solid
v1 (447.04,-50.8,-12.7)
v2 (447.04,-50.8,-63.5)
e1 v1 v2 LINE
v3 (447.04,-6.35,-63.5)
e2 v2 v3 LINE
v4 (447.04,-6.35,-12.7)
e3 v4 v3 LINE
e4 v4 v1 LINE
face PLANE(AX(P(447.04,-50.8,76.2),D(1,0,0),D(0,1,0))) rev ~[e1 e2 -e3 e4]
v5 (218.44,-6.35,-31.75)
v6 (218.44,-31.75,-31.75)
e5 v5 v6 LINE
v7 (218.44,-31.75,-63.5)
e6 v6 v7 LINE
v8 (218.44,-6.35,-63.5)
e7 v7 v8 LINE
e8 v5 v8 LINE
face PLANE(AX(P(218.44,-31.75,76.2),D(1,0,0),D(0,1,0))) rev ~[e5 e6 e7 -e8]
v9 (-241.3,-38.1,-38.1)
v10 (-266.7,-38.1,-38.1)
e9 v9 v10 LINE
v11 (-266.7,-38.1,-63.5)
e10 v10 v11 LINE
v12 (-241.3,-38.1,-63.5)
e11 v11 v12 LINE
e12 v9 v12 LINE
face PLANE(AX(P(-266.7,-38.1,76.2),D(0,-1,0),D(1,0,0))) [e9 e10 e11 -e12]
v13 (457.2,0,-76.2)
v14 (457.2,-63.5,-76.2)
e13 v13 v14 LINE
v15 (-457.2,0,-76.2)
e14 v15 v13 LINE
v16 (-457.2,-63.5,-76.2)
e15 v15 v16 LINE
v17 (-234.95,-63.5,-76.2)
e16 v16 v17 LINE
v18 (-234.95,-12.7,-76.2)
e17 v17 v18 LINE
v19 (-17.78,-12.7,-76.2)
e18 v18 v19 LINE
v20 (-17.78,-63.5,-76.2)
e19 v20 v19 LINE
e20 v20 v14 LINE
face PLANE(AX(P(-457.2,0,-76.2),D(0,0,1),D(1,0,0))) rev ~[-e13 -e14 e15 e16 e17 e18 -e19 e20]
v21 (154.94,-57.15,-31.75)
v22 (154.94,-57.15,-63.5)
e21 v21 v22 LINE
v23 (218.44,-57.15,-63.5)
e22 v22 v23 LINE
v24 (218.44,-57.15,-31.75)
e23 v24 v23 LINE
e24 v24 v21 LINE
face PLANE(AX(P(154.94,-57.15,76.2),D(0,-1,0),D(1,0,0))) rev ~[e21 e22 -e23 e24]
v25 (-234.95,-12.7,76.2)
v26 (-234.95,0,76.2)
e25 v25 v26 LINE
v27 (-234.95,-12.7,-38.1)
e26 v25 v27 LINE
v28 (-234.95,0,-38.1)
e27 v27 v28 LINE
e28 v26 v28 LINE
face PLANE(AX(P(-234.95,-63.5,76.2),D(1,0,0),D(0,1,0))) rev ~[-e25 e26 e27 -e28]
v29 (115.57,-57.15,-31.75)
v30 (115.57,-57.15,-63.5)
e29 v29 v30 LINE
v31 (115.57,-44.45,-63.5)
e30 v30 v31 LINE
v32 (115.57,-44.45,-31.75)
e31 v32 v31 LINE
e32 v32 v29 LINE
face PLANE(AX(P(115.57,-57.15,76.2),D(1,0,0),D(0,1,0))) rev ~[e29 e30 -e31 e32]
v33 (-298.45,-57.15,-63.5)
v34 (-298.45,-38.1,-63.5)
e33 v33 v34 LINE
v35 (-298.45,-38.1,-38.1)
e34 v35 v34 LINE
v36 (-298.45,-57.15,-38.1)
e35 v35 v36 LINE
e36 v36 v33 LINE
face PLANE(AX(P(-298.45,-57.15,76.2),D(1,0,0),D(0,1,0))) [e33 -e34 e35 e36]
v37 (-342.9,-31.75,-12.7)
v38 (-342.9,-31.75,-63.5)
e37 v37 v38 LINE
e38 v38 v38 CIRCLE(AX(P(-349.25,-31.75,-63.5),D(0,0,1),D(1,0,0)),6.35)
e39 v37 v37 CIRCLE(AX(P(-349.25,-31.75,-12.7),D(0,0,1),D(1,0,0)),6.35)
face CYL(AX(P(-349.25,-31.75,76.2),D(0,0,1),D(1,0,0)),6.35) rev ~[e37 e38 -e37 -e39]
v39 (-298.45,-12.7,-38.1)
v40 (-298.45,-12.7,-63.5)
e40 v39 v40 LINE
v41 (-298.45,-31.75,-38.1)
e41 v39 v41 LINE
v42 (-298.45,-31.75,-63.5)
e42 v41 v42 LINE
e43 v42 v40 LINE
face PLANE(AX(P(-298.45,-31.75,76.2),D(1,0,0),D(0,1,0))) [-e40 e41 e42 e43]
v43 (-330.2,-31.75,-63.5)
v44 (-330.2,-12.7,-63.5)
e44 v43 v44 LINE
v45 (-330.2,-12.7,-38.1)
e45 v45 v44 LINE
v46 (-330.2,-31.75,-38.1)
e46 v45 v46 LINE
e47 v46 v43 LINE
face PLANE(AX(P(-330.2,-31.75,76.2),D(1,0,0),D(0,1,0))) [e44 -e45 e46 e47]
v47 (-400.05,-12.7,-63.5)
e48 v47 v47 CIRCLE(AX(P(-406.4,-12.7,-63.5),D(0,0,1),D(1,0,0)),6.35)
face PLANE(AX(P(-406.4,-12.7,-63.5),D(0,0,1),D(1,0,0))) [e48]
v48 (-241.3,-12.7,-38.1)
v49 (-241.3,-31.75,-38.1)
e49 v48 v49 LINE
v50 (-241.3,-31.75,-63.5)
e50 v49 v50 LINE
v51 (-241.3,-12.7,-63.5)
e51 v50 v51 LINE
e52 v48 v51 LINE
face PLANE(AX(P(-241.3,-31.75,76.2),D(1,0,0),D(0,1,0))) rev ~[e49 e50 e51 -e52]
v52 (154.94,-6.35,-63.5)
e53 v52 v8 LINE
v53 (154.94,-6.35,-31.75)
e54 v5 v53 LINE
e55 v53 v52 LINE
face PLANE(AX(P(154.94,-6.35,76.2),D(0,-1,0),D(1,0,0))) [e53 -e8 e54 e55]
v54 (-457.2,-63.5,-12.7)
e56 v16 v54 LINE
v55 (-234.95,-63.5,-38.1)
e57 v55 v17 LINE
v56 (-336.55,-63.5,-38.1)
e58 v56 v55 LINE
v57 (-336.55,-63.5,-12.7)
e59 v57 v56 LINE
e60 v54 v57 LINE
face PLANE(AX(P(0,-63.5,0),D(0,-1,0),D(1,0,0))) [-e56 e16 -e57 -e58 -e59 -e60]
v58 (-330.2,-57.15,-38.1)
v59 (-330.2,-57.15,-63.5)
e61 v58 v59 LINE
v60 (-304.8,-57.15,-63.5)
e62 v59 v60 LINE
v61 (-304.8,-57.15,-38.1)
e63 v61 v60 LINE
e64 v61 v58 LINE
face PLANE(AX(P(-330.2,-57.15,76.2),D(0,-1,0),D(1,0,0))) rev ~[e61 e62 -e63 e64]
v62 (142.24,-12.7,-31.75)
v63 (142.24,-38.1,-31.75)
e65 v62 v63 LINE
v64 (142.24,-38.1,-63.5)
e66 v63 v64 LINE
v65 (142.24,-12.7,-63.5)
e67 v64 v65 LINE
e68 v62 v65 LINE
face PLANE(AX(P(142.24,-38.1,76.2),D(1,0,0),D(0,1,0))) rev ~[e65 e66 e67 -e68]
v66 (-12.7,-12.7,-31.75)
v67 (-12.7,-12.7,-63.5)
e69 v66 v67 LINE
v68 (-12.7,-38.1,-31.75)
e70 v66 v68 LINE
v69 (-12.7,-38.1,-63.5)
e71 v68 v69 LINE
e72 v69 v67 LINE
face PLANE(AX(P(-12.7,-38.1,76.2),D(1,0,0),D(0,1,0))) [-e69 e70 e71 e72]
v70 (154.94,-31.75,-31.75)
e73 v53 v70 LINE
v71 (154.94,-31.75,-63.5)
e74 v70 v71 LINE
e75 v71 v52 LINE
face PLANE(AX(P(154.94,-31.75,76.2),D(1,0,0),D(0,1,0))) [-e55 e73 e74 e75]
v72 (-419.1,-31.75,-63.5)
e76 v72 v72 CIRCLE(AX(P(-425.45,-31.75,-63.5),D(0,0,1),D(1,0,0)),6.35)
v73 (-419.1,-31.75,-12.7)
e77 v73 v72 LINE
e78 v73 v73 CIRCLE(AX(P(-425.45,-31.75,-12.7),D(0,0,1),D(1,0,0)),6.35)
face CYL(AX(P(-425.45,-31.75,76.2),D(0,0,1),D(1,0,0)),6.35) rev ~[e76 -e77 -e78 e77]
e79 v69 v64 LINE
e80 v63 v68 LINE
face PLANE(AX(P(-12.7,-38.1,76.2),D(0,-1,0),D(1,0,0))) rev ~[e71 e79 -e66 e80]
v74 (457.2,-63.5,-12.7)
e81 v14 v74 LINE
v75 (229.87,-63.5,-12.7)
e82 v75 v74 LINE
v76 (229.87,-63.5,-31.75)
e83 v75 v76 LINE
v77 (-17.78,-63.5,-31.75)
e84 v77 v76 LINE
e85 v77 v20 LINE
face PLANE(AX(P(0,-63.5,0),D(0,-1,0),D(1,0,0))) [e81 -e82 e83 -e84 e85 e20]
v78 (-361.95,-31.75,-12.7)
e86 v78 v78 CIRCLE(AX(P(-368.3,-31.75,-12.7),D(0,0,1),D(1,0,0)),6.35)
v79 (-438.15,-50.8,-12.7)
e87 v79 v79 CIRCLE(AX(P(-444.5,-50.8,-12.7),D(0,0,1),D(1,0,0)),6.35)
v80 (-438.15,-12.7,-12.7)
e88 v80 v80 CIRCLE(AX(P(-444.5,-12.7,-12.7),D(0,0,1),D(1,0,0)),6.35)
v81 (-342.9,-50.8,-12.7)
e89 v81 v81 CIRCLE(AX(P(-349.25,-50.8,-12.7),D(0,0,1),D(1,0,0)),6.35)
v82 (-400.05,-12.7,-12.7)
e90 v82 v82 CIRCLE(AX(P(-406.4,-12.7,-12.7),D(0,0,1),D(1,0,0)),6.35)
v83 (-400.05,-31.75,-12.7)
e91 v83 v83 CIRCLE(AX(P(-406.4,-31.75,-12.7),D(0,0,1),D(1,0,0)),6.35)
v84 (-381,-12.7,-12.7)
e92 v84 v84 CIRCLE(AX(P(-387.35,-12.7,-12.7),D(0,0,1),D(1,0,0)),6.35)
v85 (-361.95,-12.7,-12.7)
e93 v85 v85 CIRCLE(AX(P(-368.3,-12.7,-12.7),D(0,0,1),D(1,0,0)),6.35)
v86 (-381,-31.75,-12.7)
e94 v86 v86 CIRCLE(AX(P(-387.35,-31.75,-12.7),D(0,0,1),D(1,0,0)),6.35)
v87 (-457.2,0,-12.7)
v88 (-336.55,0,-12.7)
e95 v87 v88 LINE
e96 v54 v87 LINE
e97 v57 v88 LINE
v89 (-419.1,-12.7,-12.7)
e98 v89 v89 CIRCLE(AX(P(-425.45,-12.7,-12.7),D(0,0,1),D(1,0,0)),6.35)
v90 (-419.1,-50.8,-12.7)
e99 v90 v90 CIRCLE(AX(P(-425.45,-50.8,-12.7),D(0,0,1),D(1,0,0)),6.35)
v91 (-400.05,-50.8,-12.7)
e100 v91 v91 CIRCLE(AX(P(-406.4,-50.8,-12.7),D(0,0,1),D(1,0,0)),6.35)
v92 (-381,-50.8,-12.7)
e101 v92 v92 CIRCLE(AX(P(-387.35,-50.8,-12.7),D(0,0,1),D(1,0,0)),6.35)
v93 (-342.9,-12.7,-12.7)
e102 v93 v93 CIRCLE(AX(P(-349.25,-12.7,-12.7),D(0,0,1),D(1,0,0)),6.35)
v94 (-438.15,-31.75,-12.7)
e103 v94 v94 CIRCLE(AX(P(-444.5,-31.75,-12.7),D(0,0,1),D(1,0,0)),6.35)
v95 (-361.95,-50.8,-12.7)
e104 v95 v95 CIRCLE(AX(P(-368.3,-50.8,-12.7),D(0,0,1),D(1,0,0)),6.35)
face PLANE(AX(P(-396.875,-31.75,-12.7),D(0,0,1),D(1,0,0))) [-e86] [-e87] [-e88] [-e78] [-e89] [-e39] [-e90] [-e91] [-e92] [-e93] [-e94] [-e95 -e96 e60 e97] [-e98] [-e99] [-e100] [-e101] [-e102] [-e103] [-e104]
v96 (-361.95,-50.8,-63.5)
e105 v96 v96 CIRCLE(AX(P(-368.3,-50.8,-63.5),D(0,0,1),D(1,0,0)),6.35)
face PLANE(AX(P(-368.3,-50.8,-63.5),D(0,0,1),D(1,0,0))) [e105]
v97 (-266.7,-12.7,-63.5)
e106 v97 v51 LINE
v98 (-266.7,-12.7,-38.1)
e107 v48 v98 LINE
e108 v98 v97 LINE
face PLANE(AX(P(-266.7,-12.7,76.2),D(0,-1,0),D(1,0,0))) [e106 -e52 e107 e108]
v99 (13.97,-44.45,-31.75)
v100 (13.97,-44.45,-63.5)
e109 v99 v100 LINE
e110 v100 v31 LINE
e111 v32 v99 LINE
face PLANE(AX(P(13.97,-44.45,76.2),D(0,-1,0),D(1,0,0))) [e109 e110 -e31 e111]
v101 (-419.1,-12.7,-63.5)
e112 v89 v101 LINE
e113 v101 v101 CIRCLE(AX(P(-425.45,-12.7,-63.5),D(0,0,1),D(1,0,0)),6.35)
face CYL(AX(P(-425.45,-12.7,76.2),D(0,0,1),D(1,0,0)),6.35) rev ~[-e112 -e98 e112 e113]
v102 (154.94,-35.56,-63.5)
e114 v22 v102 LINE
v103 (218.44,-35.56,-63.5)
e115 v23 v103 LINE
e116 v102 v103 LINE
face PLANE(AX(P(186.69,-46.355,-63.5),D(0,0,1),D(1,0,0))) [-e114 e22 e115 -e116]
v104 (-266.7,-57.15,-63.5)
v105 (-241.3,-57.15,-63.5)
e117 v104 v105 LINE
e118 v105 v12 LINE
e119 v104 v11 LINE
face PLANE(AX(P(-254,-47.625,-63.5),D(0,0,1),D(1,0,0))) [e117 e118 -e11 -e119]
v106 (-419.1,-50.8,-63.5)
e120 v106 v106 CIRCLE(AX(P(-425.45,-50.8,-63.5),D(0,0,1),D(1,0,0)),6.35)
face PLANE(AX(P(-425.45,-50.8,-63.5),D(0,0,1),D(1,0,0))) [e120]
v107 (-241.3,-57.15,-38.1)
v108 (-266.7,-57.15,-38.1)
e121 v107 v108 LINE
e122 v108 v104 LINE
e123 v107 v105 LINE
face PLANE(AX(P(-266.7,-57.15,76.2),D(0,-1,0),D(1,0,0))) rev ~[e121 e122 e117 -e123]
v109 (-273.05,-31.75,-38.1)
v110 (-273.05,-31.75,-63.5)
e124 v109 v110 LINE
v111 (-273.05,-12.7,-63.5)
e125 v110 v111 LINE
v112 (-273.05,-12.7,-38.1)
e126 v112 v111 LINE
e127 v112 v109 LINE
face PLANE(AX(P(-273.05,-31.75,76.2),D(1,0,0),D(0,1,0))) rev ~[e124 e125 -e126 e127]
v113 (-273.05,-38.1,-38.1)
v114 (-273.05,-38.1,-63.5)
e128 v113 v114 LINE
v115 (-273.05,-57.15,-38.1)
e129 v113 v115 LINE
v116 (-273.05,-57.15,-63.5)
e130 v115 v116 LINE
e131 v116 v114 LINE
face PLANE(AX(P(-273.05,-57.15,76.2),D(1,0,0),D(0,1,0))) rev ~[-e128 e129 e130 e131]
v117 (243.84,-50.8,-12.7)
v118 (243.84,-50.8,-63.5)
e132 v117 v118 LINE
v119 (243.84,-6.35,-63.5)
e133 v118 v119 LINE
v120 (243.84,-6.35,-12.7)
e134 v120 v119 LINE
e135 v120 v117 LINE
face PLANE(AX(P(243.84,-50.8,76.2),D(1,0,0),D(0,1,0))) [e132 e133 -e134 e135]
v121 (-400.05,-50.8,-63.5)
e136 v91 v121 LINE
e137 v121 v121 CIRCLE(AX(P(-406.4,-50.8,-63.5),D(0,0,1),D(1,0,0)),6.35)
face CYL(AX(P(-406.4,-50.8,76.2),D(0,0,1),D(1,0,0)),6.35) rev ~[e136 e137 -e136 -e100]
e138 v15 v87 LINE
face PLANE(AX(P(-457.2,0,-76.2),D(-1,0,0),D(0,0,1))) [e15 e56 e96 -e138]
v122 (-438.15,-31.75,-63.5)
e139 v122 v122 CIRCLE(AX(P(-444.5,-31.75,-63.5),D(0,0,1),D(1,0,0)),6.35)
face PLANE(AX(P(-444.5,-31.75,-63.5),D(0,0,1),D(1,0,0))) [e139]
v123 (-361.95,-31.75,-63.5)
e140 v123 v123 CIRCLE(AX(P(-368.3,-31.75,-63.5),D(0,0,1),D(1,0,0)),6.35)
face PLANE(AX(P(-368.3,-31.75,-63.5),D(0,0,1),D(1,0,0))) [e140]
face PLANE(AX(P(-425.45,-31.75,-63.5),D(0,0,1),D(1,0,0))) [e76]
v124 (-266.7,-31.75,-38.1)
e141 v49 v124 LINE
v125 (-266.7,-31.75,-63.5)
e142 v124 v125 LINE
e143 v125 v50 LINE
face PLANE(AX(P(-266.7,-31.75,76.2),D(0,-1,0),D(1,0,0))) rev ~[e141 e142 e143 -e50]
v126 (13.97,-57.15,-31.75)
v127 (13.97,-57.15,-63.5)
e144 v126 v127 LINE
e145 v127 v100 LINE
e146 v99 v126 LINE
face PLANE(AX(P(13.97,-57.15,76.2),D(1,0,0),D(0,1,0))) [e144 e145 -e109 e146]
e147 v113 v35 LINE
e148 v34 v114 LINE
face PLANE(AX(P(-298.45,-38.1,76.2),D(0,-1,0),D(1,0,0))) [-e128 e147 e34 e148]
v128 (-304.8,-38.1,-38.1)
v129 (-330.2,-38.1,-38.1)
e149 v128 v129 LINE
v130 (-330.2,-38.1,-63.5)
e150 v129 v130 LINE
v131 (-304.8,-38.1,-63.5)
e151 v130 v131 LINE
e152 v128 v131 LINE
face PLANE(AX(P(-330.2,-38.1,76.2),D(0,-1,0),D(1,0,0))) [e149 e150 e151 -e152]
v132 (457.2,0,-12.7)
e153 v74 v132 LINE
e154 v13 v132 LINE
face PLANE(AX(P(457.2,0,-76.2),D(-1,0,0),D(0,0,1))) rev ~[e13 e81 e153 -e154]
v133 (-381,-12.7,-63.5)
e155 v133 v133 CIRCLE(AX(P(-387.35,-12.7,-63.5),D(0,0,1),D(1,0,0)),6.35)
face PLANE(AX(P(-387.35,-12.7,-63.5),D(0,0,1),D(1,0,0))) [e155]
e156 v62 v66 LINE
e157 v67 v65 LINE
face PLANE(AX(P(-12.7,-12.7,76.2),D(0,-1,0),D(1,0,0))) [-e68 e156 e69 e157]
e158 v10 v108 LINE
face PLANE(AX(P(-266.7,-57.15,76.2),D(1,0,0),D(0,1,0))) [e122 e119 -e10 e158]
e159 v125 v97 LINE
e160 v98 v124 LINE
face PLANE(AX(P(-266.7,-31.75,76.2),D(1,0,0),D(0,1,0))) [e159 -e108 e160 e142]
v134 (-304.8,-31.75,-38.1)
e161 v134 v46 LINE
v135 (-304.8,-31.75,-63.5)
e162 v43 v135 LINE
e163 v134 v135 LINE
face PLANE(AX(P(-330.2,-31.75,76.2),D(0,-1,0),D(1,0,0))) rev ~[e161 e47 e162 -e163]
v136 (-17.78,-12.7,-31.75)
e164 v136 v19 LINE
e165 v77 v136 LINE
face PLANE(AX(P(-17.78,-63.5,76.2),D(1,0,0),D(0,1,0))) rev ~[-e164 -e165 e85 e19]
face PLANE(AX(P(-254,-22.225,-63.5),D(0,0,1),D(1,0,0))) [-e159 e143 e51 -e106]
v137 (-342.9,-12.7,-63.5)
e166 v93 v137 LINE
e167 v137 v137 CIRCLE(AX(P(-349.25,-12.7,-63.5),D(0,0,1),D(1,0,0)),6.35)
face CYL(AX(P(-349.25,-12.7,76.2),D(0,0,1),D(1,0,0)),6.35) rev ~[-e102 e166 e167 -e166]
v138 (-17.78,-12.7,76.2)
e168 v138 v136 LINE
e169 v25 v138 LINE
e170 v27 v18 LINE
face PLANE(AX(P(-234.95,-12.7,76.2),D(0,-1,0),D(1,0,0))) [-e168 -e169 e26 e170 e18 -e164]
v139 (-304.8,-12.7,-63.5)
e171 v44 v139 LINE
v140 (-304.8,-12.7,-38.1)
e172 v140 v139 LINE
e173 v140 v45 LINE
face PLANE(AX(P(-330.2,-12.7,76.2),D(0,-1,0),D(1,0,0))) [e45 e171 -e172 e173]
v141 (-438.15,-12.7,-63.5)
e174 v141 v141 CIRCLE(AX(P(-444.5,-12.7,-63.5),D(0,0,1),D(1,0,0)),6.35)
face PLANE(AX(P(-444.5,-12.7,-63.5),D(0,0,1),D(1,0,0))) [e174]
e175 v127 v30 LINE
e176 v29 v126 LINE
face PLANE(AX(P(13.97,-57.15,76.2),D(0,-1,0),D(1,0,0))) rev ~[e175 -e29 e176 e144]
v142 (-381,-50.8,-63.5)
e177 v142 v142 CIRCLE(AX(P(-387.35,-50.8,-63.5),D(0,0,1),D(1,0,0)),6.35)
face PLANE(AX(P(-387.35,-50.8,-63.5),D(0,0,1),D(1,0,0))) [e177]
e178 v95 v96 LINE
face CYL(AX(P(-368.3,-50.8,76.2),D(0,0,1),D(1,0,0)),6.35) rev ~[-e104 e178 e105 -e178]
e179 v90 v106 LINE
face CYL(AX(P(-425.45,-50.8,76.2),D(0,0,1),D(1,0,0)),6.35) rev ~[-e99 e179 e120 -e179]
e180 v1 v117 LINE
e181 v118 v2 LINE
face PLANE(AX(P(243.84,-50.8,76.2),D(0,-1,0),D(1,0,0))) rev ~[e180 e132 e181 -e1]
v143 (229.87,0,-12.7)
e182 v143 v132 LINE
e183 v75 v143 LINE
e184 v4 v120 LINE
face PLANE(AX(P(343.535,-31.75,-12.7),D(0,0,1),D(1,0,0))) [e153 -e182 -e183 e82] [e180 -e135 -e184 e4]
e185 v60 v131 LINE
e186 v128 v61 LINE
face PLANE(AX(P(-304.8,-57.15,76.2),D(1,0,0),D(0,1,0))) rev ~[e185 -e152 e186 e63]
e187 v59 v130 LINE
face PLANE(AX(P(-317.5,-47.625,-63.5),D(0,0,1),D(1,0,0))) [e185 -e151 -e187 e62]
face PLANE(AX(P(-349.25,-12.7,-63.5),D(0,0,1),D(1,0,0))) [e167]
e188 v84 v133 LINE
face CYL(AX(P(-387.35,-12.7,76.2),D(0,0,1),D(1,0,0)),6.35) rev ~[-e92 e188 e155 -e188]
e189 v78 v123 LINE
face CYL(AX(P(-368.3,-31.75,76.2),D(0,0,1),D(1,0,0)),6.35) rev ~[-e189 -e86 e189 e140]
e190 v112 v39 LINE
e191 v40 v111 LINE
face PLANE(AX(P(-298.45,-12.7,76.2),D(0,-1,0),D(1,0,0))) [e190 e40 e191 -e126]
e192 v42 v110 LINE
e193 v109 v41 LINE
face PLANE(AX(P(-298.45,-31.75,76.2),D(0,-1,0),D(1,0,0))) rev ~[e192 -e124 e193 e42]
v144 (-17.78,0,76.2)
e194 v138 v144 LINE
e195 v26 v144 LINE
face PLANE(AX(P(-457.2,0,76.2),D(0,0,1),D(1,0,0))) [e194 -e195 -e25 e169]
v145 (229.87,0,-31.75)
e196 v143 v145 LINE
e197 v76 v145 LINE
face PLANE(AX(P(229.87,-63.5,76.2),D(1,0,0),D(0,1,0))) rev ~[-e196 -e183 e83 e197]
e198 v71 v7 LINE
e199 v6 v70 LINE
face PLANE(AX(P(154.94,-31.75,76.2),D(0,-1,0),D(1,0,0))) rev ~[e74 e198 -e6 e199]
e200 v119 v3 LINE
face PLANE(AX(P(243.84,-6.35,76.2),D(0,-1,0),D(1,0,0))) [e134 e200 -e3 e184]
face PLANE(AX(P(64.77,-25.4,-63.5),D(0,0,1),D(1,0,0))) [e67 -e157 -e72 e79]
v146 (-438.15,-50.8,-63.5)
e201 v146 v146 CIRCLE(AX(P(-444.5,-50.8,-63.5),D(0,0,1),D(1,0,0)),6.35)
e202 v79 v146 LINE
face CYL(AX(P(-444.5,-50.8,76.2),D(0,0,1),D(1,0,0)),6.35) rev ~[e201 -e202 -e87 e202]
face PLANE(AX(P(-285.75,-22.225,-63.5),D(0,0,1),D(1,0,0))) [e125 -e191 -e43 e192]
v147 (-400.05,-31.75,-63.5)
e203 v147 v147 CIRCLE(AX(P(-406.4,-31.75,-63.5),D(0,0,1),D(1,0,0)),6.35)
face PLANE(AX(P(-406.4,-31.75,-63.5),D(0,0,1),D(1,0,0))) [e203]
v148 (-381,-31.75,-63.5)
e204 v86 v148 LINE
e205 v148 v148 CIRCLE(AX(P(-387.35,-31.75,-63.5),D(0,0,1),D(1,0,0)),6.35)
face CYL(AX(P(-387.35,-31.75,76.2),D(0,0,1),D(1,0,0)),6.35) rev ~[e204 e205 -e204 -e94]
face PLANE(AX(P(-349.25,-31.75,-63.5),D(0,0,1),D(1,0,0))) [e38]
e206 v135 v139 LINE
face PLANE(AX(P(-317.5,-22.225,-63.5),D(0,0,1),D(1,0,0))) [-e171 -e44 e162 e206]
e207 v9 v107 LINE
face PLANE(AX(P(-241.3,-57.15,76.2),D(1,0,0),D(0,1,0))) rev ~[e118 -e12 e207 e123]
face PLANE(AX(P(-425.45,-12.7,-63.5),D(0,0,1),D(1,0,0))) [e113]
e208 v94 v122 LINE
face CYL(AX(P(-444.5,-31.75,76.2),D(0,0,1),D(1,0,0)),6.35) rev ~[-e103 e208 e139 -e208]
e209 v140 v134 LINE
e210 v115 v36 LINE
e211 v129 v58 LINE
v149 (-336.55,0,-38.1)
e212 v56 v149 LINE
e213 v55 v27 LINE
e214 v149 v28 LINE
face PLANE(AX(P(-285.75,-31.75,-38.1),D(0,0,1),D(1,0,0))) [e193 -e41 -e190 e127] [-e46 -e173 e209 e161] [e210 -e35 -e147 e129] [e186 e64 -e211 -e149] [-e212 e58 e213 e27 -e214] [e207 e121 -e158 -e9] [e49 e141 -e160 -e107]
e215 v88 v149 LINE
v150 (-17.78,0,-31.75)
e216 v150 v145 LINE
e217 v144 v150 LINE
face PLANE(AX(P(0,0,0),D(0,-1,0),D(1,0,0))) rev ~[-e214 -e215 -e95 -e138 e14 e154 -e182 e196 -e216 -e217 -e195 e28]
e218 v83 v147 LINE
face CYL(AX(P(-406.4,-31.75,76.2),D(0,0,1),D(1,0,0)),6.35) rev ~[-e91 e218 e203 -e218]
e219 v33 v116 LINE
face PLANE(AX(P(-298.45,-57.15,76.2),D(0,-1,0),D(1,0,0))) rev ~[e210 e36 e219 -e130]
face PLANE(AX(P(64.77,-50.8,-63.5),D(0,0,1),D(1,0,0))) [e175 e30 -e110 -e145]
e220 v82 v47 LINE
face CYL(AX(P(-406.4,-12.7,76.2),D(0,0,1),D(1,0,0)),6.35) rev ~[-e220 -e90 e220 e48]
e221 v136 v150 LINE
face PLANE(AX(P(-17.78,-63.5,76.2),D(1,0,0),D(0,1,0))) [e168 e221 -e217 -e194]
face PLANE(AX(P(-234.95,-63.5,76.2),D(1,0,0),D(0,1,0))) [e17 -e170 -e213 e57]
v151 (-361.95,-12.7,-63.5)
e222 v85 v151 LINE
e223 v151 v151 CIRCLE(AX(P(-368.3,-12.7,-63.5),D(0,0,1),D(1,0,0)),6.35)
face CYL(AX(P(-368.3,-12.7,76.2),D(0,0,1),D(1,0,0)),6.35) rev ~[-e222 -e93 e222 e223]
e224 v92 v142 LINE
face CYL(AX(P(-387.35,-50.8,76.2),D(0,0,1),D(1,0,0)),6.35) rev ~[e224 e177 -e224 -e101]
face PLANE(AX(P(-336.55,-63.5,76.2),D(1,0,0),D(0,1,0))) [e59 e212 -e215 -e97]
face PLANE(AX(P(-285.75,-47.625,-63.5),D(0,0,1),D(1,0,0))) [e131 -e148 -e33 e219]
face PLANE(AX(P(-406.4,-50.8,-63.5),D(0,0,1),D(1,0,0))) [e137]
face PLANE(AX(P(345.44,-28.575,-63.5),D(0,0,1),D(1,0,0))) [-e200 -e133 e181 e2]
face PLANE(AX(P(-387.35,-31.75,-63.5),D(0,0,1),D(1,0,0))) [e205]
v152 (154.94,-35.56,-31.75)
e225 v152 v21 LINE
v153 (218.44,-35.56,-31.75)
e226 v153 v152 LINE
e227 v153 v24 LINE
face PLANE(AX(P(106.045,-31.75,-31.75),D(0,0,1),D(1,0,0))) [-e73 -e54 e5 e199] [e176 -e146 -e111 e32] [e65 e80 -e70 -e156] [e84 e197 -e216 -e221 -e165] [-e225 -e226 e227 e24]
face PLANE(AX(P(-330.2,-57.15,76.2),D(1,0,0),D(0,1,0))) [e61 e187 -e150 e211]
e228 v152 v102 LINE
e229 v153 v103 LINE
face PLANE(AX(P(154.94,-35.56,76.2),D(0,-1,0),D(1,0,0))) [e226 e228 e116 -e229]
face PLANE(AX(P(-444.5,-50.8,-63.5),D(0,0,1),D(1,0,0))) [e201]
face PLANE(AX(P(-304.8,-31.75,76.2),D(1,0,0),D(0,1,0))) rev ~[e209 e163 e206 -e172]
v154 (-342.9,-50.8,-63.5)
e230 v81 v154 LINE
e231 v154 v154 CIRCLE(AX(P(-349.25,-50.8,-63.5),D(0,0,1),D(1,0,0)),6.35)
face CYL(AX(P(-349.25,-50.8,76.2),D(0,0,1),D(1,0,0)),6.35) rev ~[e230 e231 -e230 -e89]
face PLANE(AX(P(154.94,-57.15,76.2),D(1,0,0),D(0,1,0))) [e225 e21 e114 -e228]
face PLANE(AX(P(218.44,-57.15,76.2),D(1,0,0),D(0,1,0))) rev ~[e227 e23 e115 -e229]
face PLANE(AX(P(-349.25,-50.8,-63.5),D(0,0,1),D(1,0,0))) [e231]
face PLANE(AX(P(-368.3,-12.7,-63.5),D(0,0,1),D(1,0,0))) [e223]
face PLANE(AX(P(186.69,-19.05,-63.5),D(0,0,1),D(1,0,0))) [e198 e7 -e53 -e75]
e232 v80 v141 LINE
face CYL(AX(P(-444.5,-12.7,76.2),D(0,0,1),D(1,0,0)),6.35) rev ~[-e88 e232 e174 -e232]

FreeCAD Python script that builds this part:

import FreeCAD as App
import Part
import Sketcher

V = App.Vector
Q = App.Units.Quantity

doc = App.newDocument("Part")
body = doc.addObject("PartDesign::Body", "Body")

sketch1 = body.newObject("Sketcher::SketchObject", "Sketch")
sketch1.AttachmentSupport = (doc.getObject("XZ_Plane"), [""])
sketch1.MapMode = "FlatFace"
sketch1.addGeometry(Part.LineSegment(V(-457.2, 76.2, 0), V(-457.2, -76.2, 0)), False)
sketch1.addGeometry(Part.LineSegment(V(-457.2, -76.2, 0), V(457.2, -76.2, 0)), False)
sketch1.addGeometry(Part.LineSegment(V(457.2, -76.2, 0), V(457.2, 76.2, 0)), False)
sketch1.addGeometry(Part.LineSegment(V(457.2, 76.2, 0), V(-457.2, 76.2, 0)), False)
sketch1.addConstraint(Sketcher.Constraint("Coincident", 0, 2, 1, 1))
sketch1.addConstraint(Sketcher.Constraint("Coincident", 1, 2, 2, 1))
sketch1.addConstraint(Sketcher.Constraint("Coincident", 2, 2, 3, 1))
sketch1.addConstraint(Sketcher.Constraint("Coincident", 3, 2, 0, 1))
sketch1.addConstraint(Sketcher.Constraint("Vertical", 0))
sketch1.addConstraint(Sketcher.Constraint("Horizontal", 1))
sketch1.addConstraint(Sketcher.Constraint("Vertical", 2))
sketch1.addConstraint(Sketcher.Constraint("Horizontal", 3))
sketch1.addConstraint(Sketcher.Constraint("Symmetric", 0, 2, 2, 2, -1, 1))
sketch1.addConstraint(Sketcher.Constraint("DistanceX", 1, 1, 1, 2, Q("36 in")))
sketch1.addConstraint(Sketcher.Constraint("DistanceY", 0, 2, 0, 1, Q("6 in")))
pad1 = body.newObject("PartDesign::Pad", "Pad")
pad1.Profile = sketch1
pad1.Length = Q("2.5 in")

sketch2 = body.newObject("Sketcher::SketchObject", "Sketch001")
sketch2.AttachmentSupport = (doc.getObject("XY_Plane"), [""])
sketch2.MapMode = "FlatFace"
sketch2.AttachmentOffset = App.Placement(V(0, 0, 3 * 25.4), App.Rotation())
sketch2.addGeometry(Part.Circle(V(-444.5, -12.7, 0), V(0, 0, 1), 6.35), False)
sketch2.addGeometry(Part.Circle(V(-425.45, -12.7, 0), V(0, 0, 1), 6.35), False)
sketch2.addGeometry(Part.Circle(V(-406.4, -12.7, 0), V(0, 0, 1), 6.35), False)
sketch2.addGeometry(Part.Circle(V(-387.35, -12.7, 0), V(0, 0, 1), 6.35), False)
sketch2.addGeometry(Part.Circle(V(-368.3, -12.7, 0), V(0, 0, 1), 6.35), False)
sketch2.addGeometry(Part.Circle(V(-349.25, -12.7, 0), V(0, 0, 1), 6.35), False)
sketch2.addGeometry(Part.Circle(V(-444.5, -31.75, 0), V(0, 0, 1), 6.35), False)
sketch2.addGeometry(Part.Circle(V(-425.45, -31.75, 0), V(0, 0, 1), 6.35), False)
sketch2.addGeometry(Part.Circle(V(-406.4, -31.75, 0), V(0, 0, 1), 6.35), False)
sketch2.addGeometry(Part.Circle(V(-387.35, -31.75, 0), V(0, 0, 1), 6.35), False)
sketch2.addGeometry(Part.Circle(V(-368.3, -31.75, 0), V(0, 0, 1), 6.35), False)
sketch2.addGeometry(Part.Circle(V(-349.25, -31.75, 0), V(0, 0, 1), 6.35), False)
sketch2.addGeometry(Part.Circle(V(-444.5, -50.8, 0), V(0, 0, 1), 6.35), False)
sketch2.addGeometry(Part.Circle(V(-425.45, -50.8, 0), V(0, 0, 1), 6.35), False)
sketch2.addGeometry(Part.Circle(V(-406.4, -50.8, 0), V(0, 0, 1), 6.35), False)
sketch2.addGeometry(Part.Circle(V(-387.35, -50.8, 0), V(0, 0, 1), 6.35), False)
sketch2.addGeometry(Part.Circle(V(-368.3, -50.8, 0), V(0, 0, 1), 6.35), False)
sketch2.addGeometry(Part.Circle(V(-349.25, -50.8, 0), V(0, 0, 1), 6.35), False)
sketch2.addGeometry(Part.LineSegment(V(-330.2, -38.1, 0), V(-330.2, -57.15, 0)), False)
sketch2.addGeometry(Part.LineSegment(V(-330.2, -57.15, 0), V(-304.8, -57.15, 0)), False)
sketch2.addGeometry(Part.LineSegment(V(-304.8, -57.15, 0), V(-304.8, -38.1, 0)), False)
sketch2.addGeometry(Part.LineSegment(V(-304.8, -38.1, 0), V(-330.2, -38.1, 0)), False)
sketch2.addGeometry(Part.LineSegment(V(-330.2, -12.7, 0), V(-330.2, -31.75, 0)), False)
sketch2.addGeometry(Part.LineSegment(V(-330.2, -31.75, 0), V(-304.8, -31.75, 0)), False)
sketch2.addGeometry(Part.LineSegment(V(-304.8, -31.75, 0), V(-304.8, -12.7, 0)), False)
sketch2.addGeometry(Part.LineSegment(V(-304.8, -12.7, 0), V(-330.2, -12.7, 0)), False)
sketch2.addGeometry(Part.LineSegment(V(-298.45, -12.7, 0), V(-298.45, -31.75, 0)), False)
sketch2.addGeometry(Part.LineSegment(V(-298.45, -31.75, 0), V(-273.05, -31.75, 0)), False)
sketch2.addGeometry(Part.LineSegment(V(-273.05, -31.75, 0), V(-273.05, -12.7, 0)), False)
sketch2.addGeometry(Part.LineSegment(V(-273.05, -12.7, 0), V(-298.45, -12.7, 0)), False)
sketch2.addGeometry(Part.LineSegment(V(-298.45, -38.1, 0), V(-298.45, -57.15, 0)), False)
sketch2.addGeometry(Part.LineSegment(V(-298.45, -57.15, 0), V(-273.05, -57.15, 0)), False)
sketch2.addGeometry(Part.LineSegment(V(-273.05, -57.15, 0), V(-273.05, -38.1, 0)), False)
sketch2.addGeometry(Part.LineSegment(V(-273.05, -38.1, 0), V(-298.45, -38.1, 0)), False)
sketch2.addGeometry(Part.LineSegment(V(-266.7, -12.7, 0), V(-266.7, -31.75, 0)), False)
sketch2.addGeometry(Part.LineSegment(V(-266.7, -31.75, 0), V(-241.3, -31.75, 0)), False)
sketch2.addGeometry(Part.LineSegment(V(-241.3, -31.75, 0), V(-241.3, -12.7, 0)), False)
sketch2.addGeometry(Part.LineSegment(V(-241.3, -12.7, 0), V(-266.7, -12.7, 0)), False)
sketch2.addGeometry(Part.LineSegment(V(-266.7, -38.1, 0), V(-266.7, -57.15, 0)), False)
sketch2.addGeometry(Part.LineSegment(V(-266.7, -57.15, 0), V(-241.3, -57.15, 0)), False)
sketch2.addGeometry(Part.LineSegment(V(-241.3, -57.15, 0), V(-241.3, -38.1, 0)), False)
sketch2.addGeometry(Part.LineSegment(V(-241.3, -38.1, 0), V(-266.7, -38.1, 0)), False)
sketch2.addGeometry(Part.LineSegment(V(-12.7, -12.7, 0), V(-12.7, -38.1, 0)), False)
sketch2.addGeometry(Part.LineSegment(V(-12.7, -38.1, 0), V(142.24, -38.1, 0)), False)
sketch2.addGeometry(Part.LineSegment(V(142.24, -38.1, 0), V(142.24, -12.7, 0)), False)
sketch2.addGeometry(Part.LineSegment(V(142.24, -12.7, 0), V(-12.7, -12.7, 0)), False)
sketch2.addGeometry(Part.LineSegment(V(13.97, -44.45, 0), V(13.97, -57.15, 0)), False)
sketch2.addGeometry(Part.LineSegment(V(13.97, -57.15, 0), V(115.57, -57.15, 0)), False)
sketch2.addGeometry(Part.LineSegment(V(115.57, -57.15, 0), V(115.57, -44.45, 0)), False)
sketch2.addGeometry(Part.LineSegment(V(115.57, -44.45, 0), V(13.97, -44.45, 0)), False)
sketch2.addGeometry(Part.LineSegment(V(154.94, -6.35, 0), V(154.94, -31.75, 0)), False)
sketch2.addGeometry(Part.LineSegment(V(154.94, -31.75, 0), V(218.44, -31.75, 0)), False)
sketch2.addGeometry(Part.LineSegment(V(218.44, -31.75, 0), V(218.44, -6.35, 0)), False)
sketch2.addGeometry(Part.LineSegment(V(218.44, -6.35, 0), V(154.94, -6.35, 0)), False)
sketch2.addGeometry(Part.LineSegment(V(243.84, -6.35, 0), V(243.84, -50.8, 0)), False)
sketch2.addGeometry(Part.LineSegment(V(243.84, -50.8, 0), V(447.04, -50.8, 0)), False)
sketch2.addGeometry(Part.LineSegment(V(447.04, -50.8, 0), V(447.04, -6.35, 0)), False)
sketch2.addGeometry(Part.LineSegment(V(447.04, -6.35, 0), V(243.84, -6.35, 0)), False)
sketch2.addGeometry(Part.LineSegment(V(154.94, -35.56, 0), V(154.94, -57.15, 0)), False)
sketch2.addGeometry(Part.LineSegment(V(154.94, -57.15, 0), V(218.44, -57.15, 0)), False)
sketch2.addGeometry(Part.LineSegment(V(218.44, -57.15, 0), V(218.44, -35.56, 0)), False)
sketch2.addGeometry(Part.LineSegment(V(218.44, -35.56, 0), V(154.94, -35.56, 0)), False)
sketch2.addConstraint(Sketcher.Constraint("Coincident", 18, 2, 19, 1))
sketch2.addConstraint(Sketcher.Constraint("Coincident", 19, 2, 20, 1))
sketch2.addConstraint(Sketcher.Constraint("Coincident", 20, 2, 21, 1))
sketch2.addConstraint(Sketcher.Constraint("Coincident", 21, 2, 18, 1))
sketch2.addConstraint(Sketcher.Constraint("Coincident", 22, 2, 23, 1))
sketch2.addConstraint(Sketcher.Constraint("Coincident", 23, 2, 24, 1))
sketch2.addConstraint(Sketcher.Constraint("Coincident", 24, 2, 25, 1))
sketch2.addConstraint(Sketcher.Constraint("Coincident", 25, 2, 22, 1))
sketch2.addConstraint(Sketcher.Constraint("Coincident", 26, 2, 27, 1))
sketch2.addConstraint(Sketcher.Constraint("Coincident", 27, 2, 28, 1))
sketch2.addConstraint(Sketcher.Constraint("Coincident", 28, 2, 29, 1))
sketch2.addConstraint(Sketcher.Constraint("Coincident", 29, 2, 26, 1))
sketch2.addConstraint(Sketcher.Constraint("Coincident", 30, 2, 31, 1))
sketch2.addConstraint(Sketcher.Constraint("Coincident", 31, 2, 32, 1))
sketch2.addConstraint(Sketcher.Constraint("Coincident", 32, 2, 33, 1))
sketch2.addConstraint(Sketcher.Constraint("Coincident", 33, 2, 30, 1))
sketch2.addConstraint(Sketcher.Constraint("Coincident", 34, 2, 35, 1))
sketch2.addConstraint(Sketcher.Constraint("Coincident", 35, 2, 36, 1))
sketch2.addConstraint(Sketcher.Constraint("Coincident", 36, 2, 37, 1))
sketch2.addConstraint(Sketcher.Constraint("Coincident", 37, 2, 34, 1))
sketch2.addConstraint(Sketcher.Constraint("Coincident", 38, 2, 39, 1))
sketch2.addConstraint(Sketcher.Constraint("Coincident", 39, 2, 40, 1))
sketch2.addConstraint(Sketcher.Constraint("Coincident", 40, 2, 41, 1))
sketch2.addConstraint(Sketcher.Constraint("Coincident", 41, 2, 38, 1))
sketch2.addConstraint(Sketcher.Constraint("Coincident", 42, 2, 43, 1))
sketch2.addConstraint(Sketcher.Constraint("Coincident", 43, 2, 44, 1))
sketch2.addConstraint(Sketcher.Constraint("Coincident", 44, 2, 45, 1))
sketch2.addConstraint(Sketcher.Constraint("Coincident", 45, 2, 42, 1))
sketch2.addConstraint(Sketcher.Constraint("Coincident", 46, 2, 47, 1))
sketch2.addConstraint(Sketcher.Constraint("Coincident", 47, 2, 48, 1))
sketch2.addConstraint(Sketcher.Constraint("Coincident", 48, 2, 49, 1))
sketch2.addConstraint(Sketcher.Constraint("Coincident", 49, 2, 46, 1))
sketch2.addConstraint(Sketcher.Constraint("Coincident", 50, 2, 51, 1))
sketch2.addConstraint(Sketcher.Constraint("Coincident", 51, 2, 52, 1))
sketch2.addConstraint(Sketcher.Constraint("Coincident", 52, 2, 53, 1))
sketch2.addConstraint(Sketcher.Constraint("Coincident", 53, 2, 50, 1))
sketch2.addConstraint(Sketcher.Constraint("Coincident", 54, 2, 55, 1))
sketch2.addConstraint(Sketcher.Constraint("Coincident", 55, 2, 56, 1))
sketch2.addConstraint(Sketcher.Constraint("Coincident", 56, 2, 57, 1))
sketch2.addConstraint(Sketcher.Constraint("Coincident", 57, 2, 54, 1))
sketch2.addConstraint(Sketcher.Constraint("Coincident", 58, 2, 59, 1))
sketch2.addConstraint(Sketcher.Constraint("Coincident", 59, 2, 60, 1))
sketch2.addConstraint(Sketcher.Constraint("Coincident", 60, 2, 61, 1))
sketch2.addConstraint(Sketcher.Constraint("Coincident", 61, 2, 58, 1))
sketch2.addConstraint(Sketcher.Constraint("Vertical", 18))
sketch2.addConstraint(Sketcher.Constraint("Horizontal", 19))
sketch2.addConstraint(Sketcher.Constraint("Vertical", 20))
sketch2.addConstraint(Sketcher.Constraint("Horizontal", 21))
sketch2.addConstraint(Sketcher.Constraint("Vertical", 22))
sketch2.addConstraint(Sketcher.Constraint("Horizontal", 23))
sketch2.addConstraint(Sketcher.Constraint("Vertical", 24))
sketch2.addConstraint(Sketcher.Constraint("Horizontal", 25))
sketch2.addConstraint(Sketcher.Constraint("Vertical", 26))
sketch2.addConstraint(Sketcher.Constraint("Horizontal", 27))
sketch2.addConstraint(Sketcher.Constraint("Vertical", 28))
sketch2.addConstraint(Sketcher.Constraint("Horizontal", 29))
sketch2.addConstraint(Sketcher.Constraint("Vertical", 30))
sketch2.addConstraint(Sketcher.Constraint("Horizontal", 31))
sketch2.addConstraint(Sketcher.Constraint("Vertical", 32))
sketch2.addConstraint(Sketcher.Constraint("Horizontal", 33))
sketch2.addConstraint(Sketcher.Constraint("Vertical", 34))
sketch2.addConstraint(Sketcher.Constraint("Horizontal", 35))
sketch2.addConstraint(Sketcher.Constraint("Vertical", 36))
sketch2.addConstraint(Sketcher.Constraint("Horizontal", 37))
sketch2.addConstraint(Sketcher.Constraint("Vertical", 38))
sketch2.addConstraint(Sketcher.Constraint("Horizontal", 39))
sketch2.addConstraint(Sketcher.Constraint("Vertical", 40))
sketch2.addConstraint(Sketcher.Constraint("Horizontal", 41))
sketch2.addConstraint(Sketcher.Constraint("Vertical", 42))
sketch2.addConstraint(Sketcher.Constraint("Horizontal", 43))
sketch2.addConstraint(Sketcher.Constraint("Vertical", 44))
sketch2.addConstraint(Sketcher.Constraint("Horizontal", 45))
sketch2.addConstraint(Sketcher.Constraint("Vertical", 46))
sketch2.addConstraint(Sketcher.Constraint("Horizontal", 47))
sketch2.addConstraint(Sketcher.Constraint("Vertical", 48))
sketch2.addConstraint(Sketcher.Constraint("Horizontal", 49))
sketch2.addConstraint(Sketcher.Constraint("Vertical", 50))
sketch2.addConstraint(Sketcher.Constraint("Horizontal", 51))
sketch2.addConstraint(Sketcher.Constraint("Vertical", 52))
sketch2.addConstraint(Sketcher.Constraint("Horizontal", 53))
sketch2.addConstraint(Sketcher.Constraint("Vertical", 54))
sketch2.addConstraint(Sketcher.Constraint("Horizontal", 55))
sketch2.addConstraint(Sketcher.Constraint("Vertical", 56))
sketch2.addConstraint(Sketcher.Constraint("Horizontal", 57))
sketch2.addConstraint(Sketcher.Constraint("Vertical", 58))
sketch2.addConstraint(Sketcher.Constraint("Horizontal", 59))
sketch2.addConstraint(Sketcher.Constraint("Vertical", 60))
sketch2.addConstraint(Sketcher.Constraint("Horizontal", 61))
sketch2.addConstraint(Sketcher.Constraint("Equal", 0, 1))
sketch2.addConstraint(Sketcher.Constraint("Equal", 1, 2))
sketch2.addConstraint(Sketcher.Constraint("Equal", 2, 3))
sketch2.addConstraint(Sketcher.Constraint("Equal", 3, 4))
sketch2.addConstraint(Sketcher.Constraint("Equal", 4, 5))
sketch2.addConstraint(Sketcher.Constraint("Equal", 5, 6))
sketch2.addConstraint(Sketcher.Constraint("Equal", 6, 7))
sketch2.addConstraint(Sketcher.Constraint("Equal", 7, 8))
sketch2.addConstraint(Sketcher.Constraint("Equal", 8, 9))
sketch2.addConstraint(Sketcher.Constraint("Equal", 9, 10))
sketch2.addConstraint(Sketcher.Constraint("Equal", 10, 11))
sketch2.addConstraint(Sketcher.Constraint("Equal", 11, 12))
sketch2.addConstraint(Sketcher.Constraint("Equal", 12, 13))
sketch2.addConstraint(Sketcher.Constraint("Equal", 13, 14))
sketch2.addConstraint(Sketcher.Constraint("Equal", 14, 15))
sketch2.addConstraint(Sketcher.Constraint("Equal", 15, 16))
sketch2.addConstraint(Sketcher.Constraint("Equal", 16, 17))
sketch2.addConstraint(Sketcher.Constraint("Horizontal", 0, 3, 1, 3))
sketch2.addConstraint(Sketcher.Constraint("Horizontal", 1, 3, 2, 3))
sketch2.addConstraint(Sketcher.Constraint("Horizontal", 2, 3, 3, 3))
sketch2.addConstraint(Sketcher.Constraint("Horizontal", 3, 3, 4, 3))
sketch2.addConstraint(Sketcher.Constraint("Horizontal", 4, 3, 5, 3))
sketch2.addConstraint(Sketcher.Constraint("Horizontal", 6, 3, 7, 3))
sketch2.addConstraint(Sketcher.Constraint("Horizontal", 7, 3, 8, 3))
sketch2.addConstraint(Sketcher.Constraint("Horizontal", 8, 3, 9, 3))
sketch2.addConstraint(Sketcher.Constraint("Horizontal", 9, 3, 10, 3))
sketch2.addConstraint(Sketcher.Constraint("Horizontal", 10, 3, 11, 3))
sketch2.addConstraint(Sketcher.Constraint("Horizontal", 12, 3, 13, 3))
sketch2.addConstraint(Sketcher.Constraint("Horizontal", 13, 3, 14, 3))
sketch2.addConstraint(Sketcher.Constraint("Horizontal", 14, 3, 15, 3))
sketch2.addConstraint(Sketcher.Constraint("Horizontal", 15, 3, 16, 3))
sketch2.addConstraint(Sketcher.Constraint("Horizontal", 16, 3, 17, 3))
sketch2.addConstraint(Sketcher.Constraint("Horizontal", 11, 3, 22, 2))
sketch2.addConstraint(Sketcher.Constraint("Horizontal", 5, 3, 24, 2))
sketch2.addConstraint(Sketcher.Constraint("Horizontal", 23, 2, 26, 2))
sketch2.addConstraint(Sketcher.Constraint("Horizontal", 25, 2, 28, 2))
sketch2.addConstraint(Sketcher.Constraint("Horizontal", 19, 2, 30, 2))
sketch2.addConstraint(Sketcher.Constraint("Horizontal", 21, 2, 32, 2))
sketch2.addConstraint(Sketcher.Constraint("Horizontal", 27, 2, 34, 2))
sketch2.addConstraint(Sketcher.Constraint("Horizontal", 29, 2, 36, 2))
sketch2.addConstraint(Sketcher.Constraint("Horizontal", 31, 2, 38, 2))
sketch2.addConstraint(Sketcher.Constraint("Horizontal", 33, 2, 40, 2))
sketch2.addConstraint(Sketcher.Constraint("Horizontal", 41, 2, 42, 2))
sketch2.addConstraint(Sketcher.Constraint("Horizontal", 37, 2, 44, 2))
sketch2.addConstraint(Sketcher.Constraint("Horizontal", 39, 2, 46, 2))
sketch2.addConstraint(Sketcher.Constraint("Horizontal", 35, 2, 50, 2))
sketch2.addConstraint(Sketcher.Constraint("Horizontal", 17, 3, 54, 2))
sketch2.addConstraint(Sketcher.Constraint("Horizontal", 53, 2, 56, 2))
sketch2.addConstraint(Sketcher.Constraint("Horizontal", 47, 2, 58, 2))
sketch2.addConstraint(Sketcher.Constraint("Vertical", 0, 3, 6, 3))
sketch2.addConstraint(Sketcher.Constraint("Vertical", 1, 3, 7, 3))
sketch2.addConstraint(Sketcher.Constraint("Vertical", 2, 3, 8, 3))
sketch2.addConstraint(Sketcher.Constraint("Vertical", 3, 3, 9, 3))
sketch2.addConstraint(Sketcher.Constraint("Vertical", 4, 3, 10, 3))
sketch2.addConstraint(Sketcher.Constraint("Vertical", 5, 3, 11, 3))
sketch2.addConstraint(Sketcher.Constraint("Vertical", 6, 3, 12, 3))
sketch2.addConstraint(Sketcher.Constraint("Vertical", 7, 3, 13, 3))
sketch2.addConstraint(Sketcher.Constraint("Vertical", 8, 3, 14, 3))
sketch2.addConstraint(Sketcher.Constraint("Vertical", 9, 3, 15, 3))
sketch2.addConstraint(Sketcher.Constraint("Vertical", 10, 3, 16, 3))
sketch2.addConstraint(Sketcher.Constraint("Vertical", 11, 3, 17, 3))
sketch2.addConstraint(Sketcher.Constraint("Vertical", 21, 2, 22, 2))
sketch2.addConstraint(Sketcher.Constraint("Vertical", 20, 2, 23, 2))
sketch2.addConstraint(Sketcher.Constraint("Vertical", 29, 2, 30, 2))
sketch2.addConstraint(Sketcher.Constraint("Vertical", 28, 2, 31, 2))
sketch2.addConstraint(Sketcher.Constraint("Vertical", 37, 2, 38, 2))
sketch2.addConstraint(Sketcher.Constraint("Vertical", 36, 2, 39, 2))
sketch2.addConstraint(Sketcher.Constraint("Vertical", 53, 2, 58, 2))
sketch2.addConstraint(Sketcher.Constraint("Vertical", 52, 2, 59, 2))
sketch2.addConstraint(Sketcher.Constraint("Equal", 25, 27))
sketch2.addConstraint(Sketcher.Constraint("Equal", 33, 35))
sketch2.addConstraint(Sketcher.Constraint("Equal", 20, 22))
sketch2.addConstraint(Sketcher.Constraint("Equal", 41, 42))
sketch2.addConstraint(Sketcher.Constraint("Equal", 44, 50))
sketch2.addConstraint(Sketcher.Constraint("Diameter", 0, Q("0.5 in")))
sketch2.addConstraint(Sketcher.Constraint("DistanceX", 19, 1, 19, 2, Q("1 in")))
sketch2.addConstraint(Sketcher.Constraint("DistanceX", 47, 1, 47, 2, Q("4 in")))
sketch2.addConstraint(Sketcher.Constraint("DistanceX", 55, 1, 55, 2, Q("8 in")))
sketch2.addConstraint(Sketcher.Constraint("DistanceX", 43, 1, 43, 2, Q("6.1 in")))
sketch2.addConstraint(Sketcher.Constraint("DistanceX", 51, 1, 51, 2, Q("2.5 in")))
sketch2.addConstraint(Sketcher.Constraint("DistanceY", 46, 2, 46, 1, Q("0.5 in")))
sketch2.addConstraint(Sketcher.Constraint("DistanceX", 2, 3, -1, 1, Q("16 in")))
sketch2.addConstraint(Sketcher.Constraint("DistanceY", 12, 3, -1, 1, Q("2 in")))
sketch2.addConstraint(Sketcher.Constraint("DistanceX", 18, 2, -1, 1, Q("13 in")))
sketch2.addConstraint(Sketcher.Constraint("DistanceY", 18, 2, 18, 1, Q("0.75 in")))
sketch2.addConstraint(Sketcher.Constraint("DistanceY", 54, 2, 54, 1, Q("1.75 in")))
sketch2.addConstraint(Sketcher.Constraint("DistanceY", 58, 2, 58, 1, Q("0.85 in")))
sketch2.addConstraint(Sketcher.Constraint("DistanceX", 0, 3, -1, 1, Q("17.5 in")))
sketch2.addConstraint(Sketcher.Constraint("DistanceX", 4, 3, -1, 1, Q("14.5 in")))
sketch2.addConstraint(Sketcher.Constraint("DistanceX", 34, 2, -1, 1, Q("10.5 in")))
sketch2.addConstraint(Sketcher.Constraint("DistanceX", 42, 2, -1, 1, Q("0.5 in")))
sketch2.addConstraint(Sketcher.Constraint("DistanceX", -1, 1, 50, 2, Q("6.1 in")))
sketch2.addConstraint(Sketcher.Constraint("DistanceX", -1, 1, 54, 2, Q("9.6 in")))
sketch2.addConstraint(Sketcher.Constraint("DistanceX", 1, 3, -1, 1, Q("16.75 in")))
sketch2.addConstraint(Sketcher.Constraint("DistanceX", 3, 3, -1, 1, Q("15.25 in")))
sketch2.addConstraint(Sketcher.Constraint("DistanceX", 5, 3, -1, 1, Q("13.75 in")))
sketch2.addConstraint(Sketcher.Constraint("DistanceX", 26, 2, -1, 1, Q("11.75 in")))
sketch2.addConstraint(Sketcher.Constraint("DistanceX", -1, 1, 46, 2, Q("0.55 in")))
pocket1 = body.newObject("PartDesign::Pocket", "Pocket")
pocket1.Profile = sketch2
pocket1.Length = Q("5.5 in")

sketch3 = body.newObject("Sketcher::SketchObject", "Sketch002")
sketch3.AttachmentSupport = (doc.getObject("XY_Plane"), [""])
sketch3.MapMode = "FlatFace"
sketch3.AttachmentOffset = App.Placement(V(0, 0, 3 * 25.4), App.Rotation())
sketch3.addGeometry(Part.LineSegment(V(-457.2, 0, 0), V(-457.2, -63.5, 0)), False)
sketch3.addGeometry(Part.LineSegment(V(-457.2, -63.5, 0), V(-336.55, -63.5, 0)), False)
sketch3.addGeometry(Part.LineSegment(V(-336.55, -63.5, 0), V(-336.55, 0, 0)), False)
sketch3.addGeometry(Part.LineSegment(V(-336.55, 0, 0), V(-457.2, 0, 0)), False)
sketch3.addConstraint(Sketcher.Constraint("Coincident", 0, 2, 1, 1))
sketch3.addConstraint(Sketcher.Constraint("Coincident", 1, 2, 2, 1))
sketch3.addConstraint(Sketcher.Constraint("Coincident", 2, 2, 3, 1))
sketch3.addConstraint(Sketcher.Constraint("Coincident", 3, 2, 0, 1))
sketch3.addConstraint(Sketcher.Constraint("Vertical", 0))
sketch3.addConstraint(Sketcher.Constraint("Horizontal", 1))
sketch3.addConstraint(Sketcher.Constraint("Vertical", 2))
sketch3.addConstraint(Sketcher.Constraint("Horizontal", 3))
sketch3.addConstraint(Sketcher.Constraint("PointOnObject", 2, 2, -1))
sketch3.addConstraint(Sketcher.Constraint("DistanceY", 0, 2, 0, 1, Q("2.5 in")))
sketch3.addConstraint(Sketcher.Constraint("DistanceX", 0, 2, -1, 1, Q("18 in")))
sketch3.addConstraint(Sketcher.Constraint("DistanceX", 1, 1, 1, 2, Q("4.75 in")))
pocket2 = body.newObject("PartDesign::Pocket", "Pocket001")
pocket2.Profile = sketch3
pocket2.Length = Q("3.5 in")

sketch4 = body.newObject("Sketcher::SketchObject", "Sketch003")
sketch4.AttachmentSupport = (doc.getObject("XY_Plane"), [""])
sketch4.MapMode = "FlatFace"
sketch4.AttachmentOffset = App.Placement(V(0, 0, 3 * 25.4), App.Rotation())
sketch4.addGeometry(Part.LineSegment(V(-336.55, 0, 0), V(-336.55, -63.5, 0)), False)
sketch4.addGeometry(Part.LineSegment(V(-336.55, -63.5, 0), V(-234.95, -63.5, 0)), False)
sketch4.addGeometry(Part.LineSegment(V(-234.95, -63.5, 0), V(-234.95, 0, 0)), False)
sketch4.addGeometry(Part.LineSegment(V(-234.95, 0, 0), V(-336.55, 0, 0)), False)
sketch4.addConstraint(Sketcher.Constraint("Coincident", 0, 2, 1, 1))
sketch4.addConstraint(Sketcher.Constraint("Coincident", 1, 2, 2, 1))
sketch4.addConstraint(Sketcher.Constraint("Coincident", 2, 2, 3, 1))
sketch4.addConstraint(Sketcher.Constraint("Coincident", 3, 2, 0, 1))
sketch4.addConstraint(Sketcher.Constraint("Vertical", 0))
sketch4.addConstraint(Sketcher.Constraint("Horizontal", 1))
sketch4.addConstraint(Sketcher.Constraint("Vertical", 2))
sketch4.addConstraint(Sketcher.Constraint("Horizontal", 3))
sketch4.addConstraint(Sketcher.Constraint("PointOnObject", 2, 2, -1))
sketch4.addConstraint(Sketcher.Constraint("DistanceX", 1, 1, 1, 2, Q("4 in")))
sketch4.addConstraint(Sketcher.Constraint("DistanceY", 0, 2, 0, 1, Q("2.5 in")))
sketch4.addConstraint(Sketcher.Constraint("DistanceX", 0, 2, -1, 1, Q("13.25 in")))
pocket3 = body.newObject("PartDesign::Pocket", "Pocket002")
pocket3.Profile = sketch4
pocket3.Length = Q("4.5 in")

sketch5 = body.newObject("Sketcher::SketchObject", "Sketch004")
sketch5.AttachmentSupport = (doc.getObject("XY_Plane"), [""])
sketch5.MapMode = "FlatFace"
sketch5.AttachmentOffset = App.Placement(V(0, 0, 3 * 25.4), App.Rotation())
sketch5.addGeometry(Part.LineSegment(V(-17.78, 0, 0), V(-17.78, -63.5, 0)), False)
sketch5.addGeometry(Part.LineSegment(V(-17.78, -63.5, 0), V(229.87, -63.5, 0)), False)
sketch5.addGeometry(Part.LineSegment(V(229.87, -63.5, 0), V(229.87, 0, 0)), False)
sketch5.addGeometry(Part.LineSegment(V(229.87, 0, 0), V(-17.78, 0, 0)), False)
sketch5.addConstraint(Sketcher.Constraint("Coincident", 0, 2, 1, 1))
sketch5.addConstraint(Sketcher.Constraint("Coincident", 1, 2, 2, 1))
sketch5.addConstraint(Sketcher.Constraint("Coincident", 2, 2, 3, 1))
sketch5.addConstraint(Sketcher.Constraint("Coincident", 3, 2, 0, 1))
sketch5.addConstraint(Sketcher.Constraint("Vertical", 0))
sketch5.addConstraint(Sketcher.Constraint("Horizontal", 1))
sketch5.addConstraint(Sketcher.Constraint("Vertical", 2))
sketch5.addConstraint(Sketcher.Constraint("Horizontal", 3))
sketch5.addConstraint(Sketcher.Constraint("PointOnObject", 2, 2, -1))
sketch5.addConstraint(Sketcher.Constraint("DistanceY", 0, 2, 0, 1, Q("2.5 in")))
sketch5.addConstraint(Sketcher.Constraint("DistanceX", 1, 1, 1, 2, Q("9.75 in")))
sketch5.addConstraint(Sketcher.Constraint("DistanceX", 0, 2, -1, 1, Q("0.7 in")))
pocket4 = body.newObject("PartDesign::Pocket", "Pocket003")
pocket4.Profile = sketch5
pocket4.Length = Q("4.25 in")

sketch6 = body.newObject("Sketcher::SketchObject", "Sketch005")
sketch6.AttachmentSupport = (doc.getObject("XY_Plane"), [""])
sketch6.MapMode = "FlatFace"
sketch6.AttachmentOffset = App.Placement(V(0, 0, 3 * 25.4), App.Rotation())
sketch6.addGeometry(Part.LineSegment(V(229.87, 0, 0), V(229.87, -63.5, 0)), False)
sketch6.addGeometry(Part.LineSegment(V(229.87, -63.5, 0), V(457.2, -63.5, 0)), False)
sketch6.addGeometry(Part.LineSegment(V(457.2, -63.5, 0), V(457.2, 0, 0)), False)
sketch6.addGeometry(Part.LineSegment(V(457.2, 0, 0), V(229.87, 0, 0)), False)
sketch6.addConstraint(Sketcher.Constraint("Coincident", 0, 2, 1, 1))
sketch6.addConstraint(Sketcher.Constraint("Coincident", 1, 2, 2, 1))
sketch6.addConstraint(Sketcher.Constraint("Coincident", 2, 2, 3, 1))
sketch6.addConstraint(Sketcher.Constraint("Coincident", 3, 2, 0, 1))
sketch6.addConstraint(Sketcher.Constraint("Vertical", 0))
sketch6.addConstraint(Sketcher.Constraint("Horizontal", 1))
sketch6.addConstraint(Sketcher.Constraint("Vertical", 2))
sketch6.addConstraint(Sketcher.Constraint("Horizontal", 3))
sketch6.addConstraint(Sketcher.Constraint("PointOnObject", 2, 2, -1))
sketch6.addConstraint(Sketcher.Constraint("DistanceY", 0, 2, 0, 1, Q("2.5 in")))
sketch6.addConstraint(Sketcher.Constraint("DistanceX", -1, 1, 1, 2, Q("18 in")))
sketch6.addConstraint(Sketcher.Constraint("DistanceX", 1, 1, 1, 2, Q("8.95 in")))
pocket5 = body.newObject("PartDesign::Pocket", "Pocket004")
pocket5.Profile = sketch6
pocket5.Length = Q("3.5 in")

sketch7 = body.newObject("Sketcher::SketchObject", "Sketch006")
sketch7.AttachmentSupport = (doc.getObject("XY_Plane"), [""])
sketch7.MapMode = "FlatFace"
sketch7.AttachmentOffset = App.Placement(V(0, 0, 3 * 25.4), App.Rotation())
sketch7.addGeometry(Part.LineSegment(V(-234.95, -12.7, 0), V(-234.95, -63.5, 0)), False)
sketch7.addGeometry(Part.LineSegment(V(-234.95, -63.5, 0), V(-17.78, -63.5, 0)), False)
sketch7.addGeometry(Part.LineSegment(V(-17.78, -63.5, 0), V(-17.78, -12.7, 0)), False)
sketch7.addGeometry(Part.LineSegment(V(-17.78, -12.7, 0), V(-234.95, -12.7, 0)), False)
sketch7.addConstraint(Sketcher.Constraint("Coincident", 0, 2, 1, 1))
sketch7.addConstraint(Sketcher.Constraint("Coincident", 1, 2, 2, 1))
sketch7.addConstraint(Sketcher.Constraint("Coincident", 2, 2, 3, 1))
sketch7.addConstraint(Sketcher.Constraint("Coincident", 3, 2, 0, 1))
sketch7.addConstraint(Sketcher.Constraint("Vertical", 0))
sketch7.addConstraint(Sketcher.Constraint("Horizontal", 1))
sketch7.addConstraint(Sketcher.Constraint("Vertical", 2))
sketch7.addConstraint(Sketcher.Constraint("Horizontal", 3))
sketch7.addConstraint(Sketcher.Constraint("DistanceY", 0, 2, 0, 1, Q("2 in")))
sketch7.addConstraint(Sketcher.Constraint("DistanceX", 1, 1, 1, 2, Q("8.55 in")))
sketch7.addConstraint(Sketcher.Constraint("DistanceY", 0, 2, -1, 1, Q("2.5 in")))
sketch7.addConstraint(Sketcher.Constraint("DistanceX", 1, 2, -1, 1, Q("0.7 in")))
pocket6 = body.newObject("PartDesign::Pocket", "Pocket005")
pocket6.Profile = sketch7
pocket6.Length = Q("6 in")

doc.recompute()
